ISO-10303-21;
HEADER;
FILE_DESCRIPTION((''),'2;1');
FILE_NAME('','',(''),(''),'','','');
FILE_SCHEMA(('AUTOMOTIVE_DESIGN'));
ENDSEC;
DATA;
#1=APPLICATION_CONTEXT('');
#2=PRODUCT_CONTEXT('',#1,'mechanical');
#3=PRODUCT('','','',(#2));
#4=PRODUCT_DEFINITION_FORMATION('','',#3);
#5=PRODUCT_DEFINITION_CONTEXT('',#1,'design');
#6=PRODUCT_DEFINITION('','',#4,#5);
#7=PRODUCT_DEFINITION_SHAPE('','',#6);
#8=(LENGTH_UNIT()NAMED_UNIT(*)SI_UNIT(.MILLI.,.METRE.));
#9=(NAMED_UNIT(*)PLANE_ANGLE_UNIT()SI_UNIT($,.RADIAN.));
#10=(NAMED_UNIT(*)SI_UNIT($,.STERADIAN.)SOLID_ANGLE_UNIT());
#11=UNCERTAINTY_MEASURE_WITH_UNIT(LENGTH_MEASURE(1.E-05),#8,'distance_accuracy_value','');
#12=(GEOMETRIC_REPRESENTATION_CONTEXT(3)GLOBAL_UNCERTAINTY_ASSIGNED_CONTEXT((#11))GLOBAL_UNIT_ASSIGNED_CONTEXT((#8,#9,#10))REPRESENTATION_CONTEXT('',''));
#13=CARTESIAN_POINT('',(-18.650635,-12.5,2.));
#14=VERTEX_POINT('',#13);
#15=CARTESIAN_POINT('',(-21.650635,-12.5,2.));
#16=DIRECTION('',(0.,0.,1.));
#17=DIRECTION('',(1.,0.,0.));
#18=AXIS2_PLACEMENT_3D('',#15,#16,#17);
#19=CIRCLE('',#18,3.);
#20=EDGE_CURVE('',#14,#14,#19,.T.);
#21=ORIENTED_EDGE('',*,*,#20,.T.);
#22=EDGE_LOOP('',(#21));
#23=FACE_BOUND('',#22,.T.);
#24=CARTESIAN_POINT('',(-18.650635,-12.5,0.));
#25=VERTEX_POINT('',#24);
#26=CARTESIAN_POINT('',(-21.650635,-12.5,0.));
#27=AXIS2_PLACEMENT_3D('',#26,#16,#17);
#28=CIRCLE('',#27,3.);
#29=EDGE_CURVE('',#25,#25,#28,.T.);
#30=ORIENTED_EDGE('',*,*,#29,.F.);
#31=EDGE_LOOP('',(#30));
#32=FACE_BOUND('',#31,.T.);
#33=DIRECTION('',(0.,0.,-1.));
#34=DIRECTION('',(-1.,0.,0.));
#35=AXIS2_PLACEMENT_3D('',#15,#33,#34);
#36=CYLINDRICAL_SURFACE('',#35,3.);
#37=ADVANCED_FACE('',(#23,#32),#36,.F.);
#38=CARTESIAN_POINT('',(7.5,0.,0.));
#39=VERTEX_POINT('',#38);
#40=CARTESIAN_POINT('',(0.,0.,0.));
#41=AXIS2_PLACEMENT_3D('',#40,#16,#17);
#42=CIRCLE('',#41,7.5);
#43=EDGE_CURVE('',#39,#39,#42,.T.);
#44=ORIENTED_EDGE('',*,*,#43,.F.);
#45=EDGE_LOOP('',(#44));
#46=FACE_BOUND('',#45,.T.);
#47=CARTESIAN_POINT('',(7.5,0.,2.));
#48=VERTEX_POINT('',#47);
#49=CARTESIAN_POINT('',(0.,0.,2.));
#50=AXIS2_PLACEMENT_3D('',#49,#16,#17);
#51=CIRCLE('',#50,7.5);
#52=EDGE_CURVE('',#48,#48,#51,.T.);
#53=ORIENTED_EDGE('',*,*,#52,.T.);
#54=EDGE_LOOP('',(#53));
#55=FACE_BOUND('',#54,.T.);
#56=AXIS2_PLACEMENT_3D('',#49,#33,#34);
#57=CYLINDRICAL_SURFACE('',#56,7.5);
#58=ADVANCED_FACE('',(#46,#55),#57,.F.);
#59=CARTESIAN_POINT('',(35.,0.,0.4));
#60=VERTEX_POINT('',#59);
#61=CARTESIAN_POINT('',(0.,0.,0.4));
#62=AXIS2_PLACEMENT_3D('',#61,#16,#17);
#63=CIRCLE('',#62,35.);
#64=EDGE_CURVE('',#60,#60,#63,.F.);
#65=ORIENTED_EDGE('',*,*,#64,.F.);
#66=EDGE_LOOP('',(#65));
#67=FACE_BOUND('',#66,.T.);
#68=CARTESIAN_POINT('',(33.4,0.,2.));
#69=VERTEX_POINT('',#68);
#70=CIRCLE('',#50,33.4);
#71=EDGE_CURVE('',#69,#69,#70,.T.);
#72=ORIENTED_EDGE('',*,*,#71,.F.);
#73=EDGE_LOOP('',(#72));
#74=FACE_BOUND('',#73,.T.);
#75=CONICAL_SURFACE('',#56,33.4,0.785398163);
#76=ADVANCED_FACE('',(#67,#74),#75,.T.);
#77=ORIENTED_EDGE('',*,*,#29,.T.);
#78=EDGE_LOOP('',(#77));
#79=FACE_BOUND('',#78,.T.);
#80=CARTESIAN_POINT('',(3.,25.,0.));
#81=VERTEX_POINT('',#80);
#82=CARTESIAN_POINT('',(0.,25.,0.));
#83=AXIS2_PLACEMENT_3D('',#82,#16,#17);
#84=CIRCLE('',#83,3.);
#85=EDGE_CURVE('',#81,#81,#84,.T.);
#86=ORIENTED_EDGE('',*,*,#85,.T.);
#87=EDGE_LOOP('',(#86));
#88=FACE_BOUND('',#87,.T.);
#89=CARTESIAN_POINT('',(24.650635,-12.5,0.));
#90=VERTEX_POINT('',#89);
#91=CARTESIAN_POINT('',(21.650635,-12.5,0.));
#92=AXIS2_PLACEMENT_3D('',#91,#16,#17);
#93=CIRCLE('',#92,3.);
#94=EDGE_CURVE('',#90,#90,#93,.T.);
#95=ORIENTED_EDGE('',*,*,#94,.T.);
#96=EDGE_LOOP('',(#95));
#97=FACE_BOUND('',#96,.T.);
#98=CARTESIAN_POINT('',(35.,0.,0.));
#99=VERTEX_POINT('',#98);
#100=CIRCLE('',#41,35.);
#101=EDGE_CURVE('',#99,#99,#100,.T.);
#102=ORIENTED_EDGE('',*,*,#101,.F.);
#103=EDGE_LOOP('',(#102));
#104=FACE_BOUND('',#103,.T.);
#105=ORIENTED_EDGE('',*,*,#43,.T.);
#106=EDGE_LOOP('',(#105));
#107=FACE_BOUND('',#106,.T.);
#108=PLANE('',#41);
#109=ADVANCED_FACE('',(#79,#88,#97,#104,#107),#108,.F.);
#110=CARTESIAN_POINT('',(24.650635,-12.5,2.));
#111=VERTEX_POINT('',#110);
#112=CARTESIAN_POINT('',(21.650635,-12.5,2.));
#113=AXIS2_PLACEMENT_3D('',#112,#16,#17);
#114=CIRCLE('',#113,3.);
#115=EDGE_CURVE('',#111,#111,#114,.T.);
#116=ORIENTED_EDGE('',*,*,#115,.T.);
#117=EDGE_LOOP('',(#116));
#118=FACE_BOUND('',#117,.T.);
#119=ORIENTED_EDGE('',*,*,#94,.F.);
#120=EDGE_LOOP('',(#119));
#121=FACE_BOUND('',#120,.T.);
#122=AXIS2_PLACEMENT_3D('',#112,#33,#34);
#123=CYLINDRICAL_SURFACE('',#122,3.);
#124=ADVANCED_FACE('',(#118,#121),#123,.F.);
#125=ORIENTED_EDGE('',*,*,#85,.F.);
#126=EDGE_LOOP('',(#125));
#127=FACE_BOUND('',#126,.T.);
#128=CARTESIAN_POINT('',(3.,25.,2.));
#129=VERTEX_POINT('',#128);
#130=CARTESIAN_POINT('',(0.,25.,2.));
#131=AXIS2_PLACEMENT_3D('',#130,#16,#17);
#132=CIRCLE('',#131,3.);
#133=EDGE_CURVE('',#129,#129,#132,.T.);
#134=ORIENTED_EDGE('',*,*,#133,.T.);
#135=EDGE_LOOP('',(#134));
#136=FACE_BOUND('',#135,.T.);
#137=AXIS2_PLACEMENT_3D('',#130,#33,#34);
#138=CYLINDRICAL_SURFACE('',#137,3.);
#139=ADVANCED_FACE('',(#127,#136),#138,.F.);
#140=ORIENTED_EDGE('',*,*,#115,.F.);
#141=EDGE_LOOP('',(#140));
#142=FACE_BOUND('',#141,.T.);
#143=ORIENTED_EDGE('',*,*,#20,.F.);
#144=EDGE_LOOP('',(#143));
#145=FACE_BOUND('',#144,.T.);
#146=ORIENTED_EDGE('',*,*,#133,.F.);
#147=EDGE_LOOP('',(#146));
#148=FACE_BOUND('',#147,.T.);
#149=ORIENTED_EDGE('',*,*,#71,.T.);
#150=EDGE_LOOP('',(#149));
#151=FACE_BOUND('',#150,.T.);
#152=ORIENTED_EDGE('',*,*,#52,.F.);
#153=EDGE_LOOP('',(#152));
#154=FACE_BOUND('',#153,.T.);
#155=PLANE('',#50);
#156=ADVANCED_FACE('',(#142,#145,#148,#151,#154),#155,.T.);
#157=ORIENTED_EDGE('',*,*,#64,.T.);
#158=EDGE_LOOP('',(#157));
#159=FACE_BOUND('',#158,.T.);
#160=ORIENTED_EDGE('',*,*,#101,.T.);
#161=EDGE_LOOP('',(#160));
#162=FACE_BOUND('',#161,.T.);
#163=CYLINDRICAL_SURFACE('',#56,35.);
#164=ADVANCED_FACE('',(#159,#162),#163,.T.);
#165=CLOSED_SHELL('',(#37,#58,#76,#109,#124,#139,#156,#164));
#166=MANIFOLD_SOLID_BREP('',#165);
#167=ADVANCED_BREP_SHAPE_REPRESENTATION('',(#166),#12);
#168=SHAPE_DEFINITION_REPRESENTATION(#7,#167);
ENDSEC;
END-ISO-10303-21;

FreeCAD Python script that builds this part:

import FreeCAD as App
import Part
import Sketcher

V = App.Vector


def edges_at(feature, points):
    """Names of the edges that pass closest to the given points."""
    edges = feature.Shape.Edges
    near = lambda p: min(range(len(edges)), key=lambda i: edges[i].distToShape(Part.Vertex(*p))[0])
    return sorted({f"Edge{near(p) + 1}" for p in points})

doc = App.newDocument("Part")
body = doc.addObject("PartDesign::Body", "Body")

sketch1 = body.newObject("Sketcher::SketchObject", "Sketch")
sketch1.AttachmentSupport = (doc.getObject("XY_Plane"), [""])
sketch1.MapMode = "FlatFace"
sketch1.addGeometry([
    Part.Circle(V(0, 0, 0), V(0, 0, 1), 35),
    Part.Circle(V(-21.7, -12.5, 0), V(0, 0, 1), 3),
    Part.Circle(V(21.7, -12.5, 0), V(0, 0, 1), 3),
    Part.Circle(V(0, 0, 0), V(0, 0, 1), 7.5),
    Part.Circle(V(0, 25, 0), V(0, 0, 1), 3),
], False)
sketch1.addConstraint([
    Sketcher.Constraint("Coincident", 0, 3, -1, 1),
    Sketcher.Constraint("Coincident", 3, 3, -1, 1),
    Sketcher.Constraint("Equal", 1, 2),
    Sketcher.Constraint("Equal", 2, 4),
    Sketcher.Constraint("Symmetric", 1, 3, 2, 3, -2),
    Sketcher.Constraint("PointOnObject", 4, 3, -2),
    Sketcher.Constraint("Diameter", 0, 70.0),
    Sketcher.Constraint("Diameter", 1, 6.0),
    Sketcher.Constraint("Diameter", 3, 15.0),
    Sketcher.Constraint("DistanceY", -1, 1, 4, 3, 25.0),
    Sketcher.Constraint("DistanceY", 1, 3, -1, 1, 12.5),
    Sketcher.Constraint("DistanceX", 1, 3, 2, 3, 43.30127),
])
pad1 = body.newObject("PartDesign::Pad", "Pad")
pad1.Profile = sketch1
pad1.Length = 2
doc.recompute()

chamfer = body.newObject("PartDesign::Chamfer", "Chamfer")
chamfer.Base = (pad1, edges_at(pad1, [(-35, 0, 2)]))
chamfer.Size = 1.6

doc.recompute()
